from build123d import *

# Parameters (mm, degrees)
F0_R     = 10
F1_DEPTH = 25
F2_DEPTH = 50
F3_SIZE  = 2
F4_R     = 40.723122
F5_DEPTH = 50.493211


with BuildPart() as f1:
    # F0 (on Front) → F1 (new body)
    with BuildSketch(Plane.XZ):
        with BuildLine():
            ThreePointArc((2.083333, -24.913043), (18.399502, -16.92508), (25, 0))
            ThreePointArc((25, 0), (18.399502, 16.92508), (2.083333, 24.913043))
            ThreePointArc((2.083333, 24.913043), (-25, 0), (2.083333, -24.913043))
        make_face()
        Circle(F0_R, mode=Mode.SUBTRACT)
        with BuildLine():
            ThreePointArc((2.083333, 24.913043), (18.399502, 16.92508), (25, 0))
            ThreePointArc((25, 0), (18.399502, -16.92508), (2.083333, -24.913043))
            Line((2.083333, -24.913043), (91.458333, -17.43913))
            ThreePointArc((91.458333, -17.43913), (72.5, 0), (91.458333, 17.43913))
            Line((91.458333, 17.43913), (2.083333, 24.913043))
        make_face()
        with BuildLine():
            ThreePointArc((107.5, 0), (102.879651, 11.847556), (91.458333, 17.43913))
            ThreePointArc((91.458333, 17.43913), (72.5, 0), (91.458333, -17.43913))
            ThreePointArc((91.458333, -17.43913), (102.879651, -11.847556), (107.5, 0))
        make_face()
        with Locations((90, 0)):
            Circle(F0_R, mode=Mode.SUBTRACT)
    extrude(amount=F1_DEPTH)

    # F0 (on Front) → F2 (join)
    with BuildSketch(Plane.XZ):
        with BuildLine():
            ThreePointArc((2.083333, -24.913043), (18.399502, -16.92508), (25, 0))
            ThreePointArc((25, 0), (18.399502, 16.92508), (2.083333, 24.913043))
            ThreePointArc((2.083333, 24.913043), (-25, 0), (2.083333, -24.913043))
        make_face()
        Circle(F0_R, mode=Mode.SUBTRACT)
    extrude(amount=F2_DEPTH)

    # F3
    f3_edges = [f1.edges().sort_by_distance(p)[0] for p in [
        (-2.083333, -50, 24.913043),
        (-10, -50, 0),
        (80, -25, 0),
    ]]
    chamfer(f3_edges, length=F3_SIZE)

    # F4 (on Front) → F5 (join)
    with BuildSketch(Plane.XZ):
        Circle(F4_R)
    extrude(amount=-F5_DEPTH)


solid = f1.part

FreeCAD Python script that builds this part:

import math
import FreeCAD as App
import Part
import Sketcher

V = App.Vector


def edges_at(feature, points):
    """Names of the edges that pass closest to the given points."""
    edges = feature.Shape.Edges
    near = lambda p: min(range(len(edges)), key=lambda i: edges[i].distToShape(Part.Vertex(*p))[0])
    return sorted({f"Edge{near(p) + 1}" for p in points})

doc = App.newDocument("Part")
body = doc.addObject("PartDesign::Body", "Body")

# Sketch on XZ plane
sketch1 = body.newObject("Sketcher::SketchObject", "Sketch")
sketch1.AttachmentSupport = (doc.getObject("XZ_Plane"), [""])
sketch1.MapMode = "FlatFace"
sketch1.addGeometry([
    Part.ArcOfCircle(Part.Circle(V(0, 0, 0), V(0, 0, 1), 25), math.radians(85.219808), math.radians(274.780192)),  # 0
    Part.LineSegment(V(2.083333, -24.913043, 0), V(91.458333, -17.43913, 0)),  # 1
    Part.ArcOfCircle(Part.Circle(V(90, 0, 0), V(0, 0, 1), 17.5), math.radians(-85.219809), math.radians(-0.000001)),  # 2
    Part.ArcOfCircle(Part.Circle(V(90, 0, 0), V(0, 0, 1), 17.5), math.radians(0.000001), math.radians(85.219809)),  # 3
    Part.LineSegment(V(91.458333, 17.43913, 0), V(2.083333, 24.913043, 0)),  # 4
    Part.Circle(V(0, 0, 0), V(0, 0, 1), 10),  # 5
    Part.Circle(V(90, 0, 0), V(0, 0, 1), 10),  # 6
], False)
sketch1.addConstraint([
    Sketcher.Constraint("Tangent", 0, 2, 1, 1),
    Sketcher.Constraint("Tangent", 1, 2, 2, 1),
    Sketcher.Constraint("Tangent", 2, 2, 3, 1),
    Sketcher.Constraint("Tangent", 3, 2, 4, 1),
    Sketcher.Constraint("Tangent", 4, 2, 0, 1),
    Sketcher.Constraint("Coincident", 0, 3, -1, 1),
    Sketcher.Constraint("Coincident", 5, 3, -1, 1),
    Sketcher.Constraint("Coincident", 6, 3, 2, 3),
    Sketcher.Constraint("Equal", 2, 3),
    Sketcher.Constraint("Equal", 5, 6),
    Sketcher.Constraint("PointOnObject", 2, 3, -1),
    Sketcher.Constraint("PointOnObject", 2, 2, -1),
    Sketcher.Constraint("Diameter", 5, 20.0),
    Sketcher.Constraint("Radius", 0, 25.0),
    Sketcher.Constraint("Radius", 2, 17.5),
    Sketcher.Constraint("DistanceX", -1, 1, 2, 3, 90.0),
])
pad1 = body.newObject("PartDesign::Pad", "Pad")
pad1.Profile = sketch1
pad1.Length = 25

# Sketch on XZ plane
sketch2 = body.newObject("Sketcher::SketchObject", "Sketch001")
sketch2.AttachmentSupport = (doc.getObject("XZ_Plane"), [""])
sketch2.MapMode = "FlatFace"
sketch2.addGeometry([
    Part.ArcOfCircle(Part.Circle(V(0.000001, -0.000001, 0), V(0, 0, 1), 24.999999), math.radians(-85.219811), math.radians(0.000001)),
    Part.ArcOfCircle(Part.Circle(V(0.000001, 0.000001, 0), V(0, 0, 1), 24.999999), math.radians(-0.000001), math.radians(85.219811)),
    Part.ArcOfCircle(Part.Circle(V(0, 0, 0), V(0, 0, 1), 25), math.radians(85.219808), math.radians(274.780192)),
    Part.Circle(V(0, 0, 0), V(0, 0, 1), 10),
], False)
sketch2.addConstraint([
    Sketcher.Constraint("Tangent", 0, 2, 1, 1),
    Sketcher.Constraint("Tangent", 1, 2, 2, 1),
    Sketcher.Constraint("Tangent", 2, 2, 0, 1),
    Sketcher.Constraint("Coincident", 0, 3, -1, 1),
    Sketcher.Constraint("Coincident", 3, 3, -1, 1),
    Sketcher.Constraint("PointOnObject", 0, 2, -1),
    Sketcher.Constraint("Vertical", 1, 2, 2, 2),
    Sketcher.Constraint("Diameter", 3, 20.0),
    Sketcher.Constraint("Radius", 0, 24.999999),
    Sketcher.Constraint("DistanceX", -1, 1, 1, 2, 2.083333),
])
pad2 = body.newObject("PartDesign::Pad", "Pad001")
pad2.Profile = sketch2
pad2.Length = 50
doc.recompute()

chamfer = body.newObject("PartDesign::Chamfer", "Chamfer")
chamfer.Base = (pad2, edges_at(pad2, [(-25, -50, 0), (-10, -50, 0), (80, -25, 0)]))
chamfer.Size = 2

# Sketch on XZ plane
sketch3 = body.newObject("Sketcher::SketchObject", "Sketch002")
sketch3.AttachmentSupport = (doc.getObject("XZ_Plane"), [""])
sketch3.MapMode = "FlatFace"
sketch3.addGeometry(Part.Circle(V(0, 0, 0), V(0, 0, 1), 40.723122), False)
sketch3.addConstraint([
    Sketcher.Constraint("Coincident", 0, 3, -1, 1),
    Sketcher.Constraint("Diameter", 0, 81.446244),
])
pad3 = body.newObject("PartDesign::Pad", "Pad002")
pad3.Profile = sketch3
pad3.Length = 50.493211
pad3.Reversed = True

doc.recompute()
